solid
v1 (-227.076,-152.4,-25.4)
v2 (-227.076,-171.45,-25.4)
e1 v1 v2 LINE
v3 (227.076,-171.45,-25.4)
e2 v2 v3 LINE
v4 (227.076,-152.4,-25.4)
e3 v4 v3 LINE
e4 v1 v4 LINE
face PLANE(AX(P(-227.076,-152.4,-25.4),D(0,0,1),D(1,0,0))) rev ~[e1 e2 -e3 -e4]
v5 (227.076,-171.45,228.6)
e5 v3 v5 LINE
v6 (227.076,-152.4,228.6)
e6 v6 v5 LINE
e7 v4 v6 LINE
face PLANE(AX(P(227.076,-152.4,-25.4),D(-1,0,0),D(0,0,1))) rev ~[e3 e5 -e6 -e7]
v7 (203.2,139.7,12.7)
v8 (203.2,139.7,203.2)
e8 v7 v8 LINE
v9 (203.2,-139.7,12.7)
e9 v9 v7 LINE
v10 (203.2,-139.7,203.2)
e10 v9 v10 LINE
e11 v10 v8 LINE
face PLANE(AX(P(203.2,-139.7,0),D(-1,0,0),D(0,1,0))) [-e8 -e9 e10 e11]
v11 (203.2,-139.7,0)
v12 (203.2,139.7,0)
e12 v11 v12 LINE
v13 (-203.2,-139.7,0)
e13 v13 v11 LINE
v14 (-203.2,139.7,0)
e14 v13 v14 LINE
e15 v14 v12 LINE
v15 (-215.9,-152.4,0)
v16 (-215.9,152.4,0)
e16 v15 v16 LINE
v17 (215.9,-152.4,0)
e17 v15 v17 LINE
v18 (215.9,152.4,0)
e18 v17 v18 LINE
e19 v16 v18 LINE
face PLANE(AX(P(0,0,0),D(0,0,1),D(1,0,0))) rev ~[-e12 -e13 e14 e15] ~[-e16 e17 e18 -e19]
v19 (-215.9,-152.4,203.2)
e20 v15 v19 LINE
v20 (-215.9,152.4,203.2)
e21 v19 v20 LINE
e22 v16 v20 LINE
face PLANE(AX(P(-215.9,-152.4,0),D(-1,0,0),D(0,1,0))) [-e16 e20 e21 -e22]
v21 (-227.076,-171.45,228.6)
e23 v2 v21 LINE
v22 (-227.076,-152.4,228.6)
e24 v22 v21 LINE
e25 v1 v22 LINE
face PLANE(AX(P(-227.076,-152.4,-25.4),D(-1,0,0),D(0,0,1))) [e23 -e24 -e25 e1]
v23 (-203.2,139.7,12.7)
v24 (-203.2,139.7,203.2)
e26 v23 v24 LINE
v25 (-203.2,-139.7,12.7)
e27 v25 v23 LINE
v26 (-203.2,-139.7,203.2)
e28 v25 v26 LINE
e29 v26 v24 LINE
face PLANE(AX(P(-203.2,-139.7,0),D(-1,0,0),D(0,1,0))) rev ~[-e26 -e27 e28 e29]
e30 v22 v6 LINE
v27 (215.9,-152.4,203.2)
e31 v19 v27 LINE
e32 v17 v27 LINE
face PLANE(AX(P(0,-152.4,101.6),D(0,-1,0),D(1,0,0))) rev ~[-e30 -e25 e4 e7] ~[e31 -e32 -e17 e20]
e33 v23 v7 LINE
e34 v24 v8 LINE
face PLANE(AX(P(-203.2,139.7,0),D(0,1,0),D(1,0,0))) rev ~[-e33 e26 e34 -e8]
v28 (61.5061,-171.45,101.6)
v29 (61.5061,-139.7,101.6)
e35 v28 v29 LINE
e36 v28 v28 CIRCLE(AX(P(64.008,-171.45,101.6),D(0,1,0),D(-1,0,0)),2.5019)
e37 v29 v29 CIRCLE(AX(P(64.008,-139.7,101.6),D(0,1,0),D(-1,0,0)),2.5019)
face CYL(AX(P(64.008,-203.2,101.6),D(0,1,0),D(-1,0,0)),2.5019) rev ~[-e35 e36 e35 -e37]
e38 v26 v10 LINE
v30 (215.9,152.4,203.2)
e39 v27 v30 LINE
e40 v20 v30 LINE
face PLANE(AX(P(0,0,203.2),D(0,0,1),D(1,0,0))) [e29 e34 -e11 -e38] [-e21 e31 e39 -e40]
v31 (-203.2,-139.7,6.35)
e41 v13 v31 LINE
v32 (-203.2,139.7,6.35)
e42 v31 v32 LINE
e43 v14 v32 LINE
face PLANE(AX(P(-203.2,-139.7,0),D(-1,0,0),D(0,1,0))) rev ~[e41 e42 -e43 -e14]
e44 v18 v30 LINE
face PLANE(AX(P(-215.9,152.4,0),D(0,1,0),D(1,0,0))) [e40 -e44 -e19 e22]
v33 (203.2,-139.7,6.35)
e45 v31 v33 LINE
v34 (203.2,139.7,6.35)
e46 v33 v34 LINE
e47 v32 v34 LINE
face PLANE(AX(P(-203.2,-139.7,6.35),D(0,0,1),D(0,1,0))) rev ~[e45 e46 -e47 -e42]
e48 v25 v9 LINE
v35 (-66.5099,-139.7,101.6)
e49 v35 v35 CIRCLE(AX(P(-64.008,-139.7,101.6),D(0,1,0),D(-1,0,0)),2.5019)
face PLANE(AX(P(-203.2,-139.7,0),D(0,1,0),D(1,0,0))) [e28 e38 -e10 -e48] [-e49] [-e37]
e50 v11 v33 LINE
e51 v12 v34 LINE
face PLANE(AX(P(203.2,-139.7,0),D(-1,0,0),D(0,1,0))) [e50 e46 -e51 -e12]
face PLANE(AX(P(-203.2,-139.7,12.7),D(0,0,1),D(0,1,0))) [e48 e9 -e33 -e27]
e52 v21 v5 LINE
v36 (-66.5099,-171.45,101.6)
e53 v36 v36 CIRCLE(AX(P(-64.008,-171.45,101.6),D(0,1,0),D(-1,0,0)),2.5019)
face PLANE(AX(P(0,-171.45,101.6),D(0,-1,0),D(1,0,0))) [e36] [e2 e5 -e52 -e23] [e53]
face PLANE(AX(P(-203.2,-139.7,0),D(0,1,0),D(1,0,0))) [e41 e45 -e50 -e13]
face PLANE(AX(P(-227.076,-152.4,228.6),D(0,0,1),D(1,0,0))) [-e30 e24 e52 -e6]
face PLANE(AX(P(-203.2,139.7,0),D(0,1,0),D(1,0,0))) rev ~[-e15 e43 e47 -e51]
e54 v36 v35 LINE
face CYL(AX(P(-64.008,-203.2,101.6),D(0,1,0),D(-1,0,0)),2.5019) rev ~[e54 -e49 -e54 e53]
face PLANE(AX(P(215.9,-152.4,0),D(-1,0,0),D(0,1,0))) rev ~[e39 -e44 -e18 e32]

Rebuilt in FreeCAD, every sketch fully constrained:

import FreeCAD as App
import Part
import Sketcher
Q = App.Units.Quantity

doc = App.newDocument("Part")
body = doc.addObject("PartDesign::Body", "Body")

sketch1 = body.newObject("Sketcher::SketchObject", "Sketch")
sketch1.AttachmentSupport = (doc.getObject("XY_Plane"), [""])
sketch1.MapMode = "FlatFace"
sketch1.addGeometry(Part.LineSegment(App.Vector(-216, 152, 0), App.Vector(-216, -152, 0)), False)
sketch1.addGeometry(Part.LineSegment(App.Vector(-216, -152, 0), App.Vector(216, -152, 0)), False)
sketch1.addGeometry(Part.LineSegment(App.Vector(216, -152, 0), App.Vector(216, 152, 0)), False)
sketch1.addGeometry(Part.LineSegment(App.Vector(216, 152, 0), App.Vector(-216, 152, 0)), False)
sketch1.addGeometry(Part.LineSegment(App.Vector(203, -140, 0), App.Vector(-203, -140, 0)), False)
sketch1.addGeometry(Part.LineSegment(App.Vector(-203, -140, 0), App.Vector(-203, 140, 0)), False)
sketch1.addGeometry(Part.LineSegment(App.Vector(-203, 140, 0), App.Vector(203, 140, 0)), False)
sketch1.addGeometry(Part.LineSegment(App.Vector(203, 140, 0), App.Vector(203, -140, 0)), False)
sketch1.addConstraint(Sketcher.Constraint("Coincident", 0, 2, 1, 1))
sketch1.addConstraint(Sketcher.Constraint("Coincident", 1, 2, 2, 1))
sketch1.addConstraint(Sketcher.Constraint("Coincident", 2, 2, 3, 1))
sketch1.addConstraint(Sketcher.Constraint("Coincident", 3, 2, 0, 1))
sketch1.addConstraint(Sketcher.Constraint("Coincident", 4, 2, 5, 1))
sketch1.addConstraint(Sketcher.Constraint("Coincident", 5, 2, 6, 1))
sketch1.addConstraint(Sketcher.Constraint("Coincident", 6, 2, 7, 1))
sketch1.addConstraint(Sketcher.Constraint("Coincident", 7, 2, 4, 1))
sketch1.addConstraint(Sketcher.Constraint("Vertical", 0))
sketch1.addConstraint(Sketcher.Constraint("Horizontal", 1))
sketch1.addConstraint(Sketcher.Constraint("Vertical", 2))
sketch1.addConstraint(Sketcher.Constraint("Horizontal", 3))
sketch1.addConstraint(Sketcher.Constraint("Horizontal", 4))
sketch1.addConstraint(Sketcher.Constraint("Vertical", 5))
sketch1.addConstraint(Sketcher.Constraint("Horizontal", 6))
sketch1.addConstraint(Sketcher.Constraint("Vertical", 7))
sketch1.addConstraint(Sketcher.Constraint("Symmetric", 0, 2, 2, 2, -1, 1))
sketch1.addConstraint(Sketcher.Constraint("Symmetric", 4, 2, 6, 2, -1, 1))
sketch1.addConstraint(Sketcher.Constraint("DistanceX", 1, 1, 1, 2, Q("17 in")))
sketch1.addConstraint(Sketcher.Constraint("DistanceX", 4, 2, 4, 1, Q("16 in")))
sketch1.addConstraint(Sketcher.Constraint("DistanceY", 0, 2, 0, 1, Q("12 in")))
sketch1.addConstraint(Sketcher.Constraint("DistanceY", 5, 1, 5, 2, Q("11 in")))
pad1 = body.newObject("PartDesign::Pad", "Pad")
pad1.Profile = sketch1
pad1.Length = Q("8 in")

sketch2 = body.newObject("Sketcher::SketchObject", "Sketch001")
sketch2.AttachmentSupport = (doc.getObject("YZ_Plane"), [""])
sketch2.MapMode = "FlatFace"
sketch2.AttachmentOffset = App.Placement(App.Vector(0, 0, -8 * 25.4), App.Rotation())
sketch2.addGeometry(Part.LineSegment(App.Vector(-140, 13, 0), App.Vector(-140, 6, 0)), False)
sketch2.addGeometry(Part.LineSegment(App.Vector(-140, 6, 0), App.Vector(140, 6, 0)), False)
sketch2.addGeometry(Part.LineSegment(App.Vector(140, 6, 0), App.Vector(140, 13, 0)), False)
sketch2.addGeometry(Part.LineSegment(App.Vector(140, 13, 0), App.Vector(-140, 13, 0)), False)
sketch2.addConstraint(Sketcher.Constraint("Coincident", 0, 2, 1, 1))
sketch2.addConstraint(Sketcher.Constraint("Coincident", 1, 2, 2, 1))
sketch2.addConstraint(Sketcher.Constraint("Coincident", 2, 2, 3, 1))
sketch2.addConstraint(Sketcher.Constraint("Coincident", 3, 2, 0, 1))
sketch2.addConstraint(Sketcher.Constraint("Vertical", 0))
sketch2.addConstraint(Sketcher.Constraint("Horizontal", 1))
sketch2.addConstraint(Sketcher.Constraint("Vertical", 2))
sketch2.addConstraint(Sketcher.Constraint("Horizontal", 3))
sketch2.addConstraint(Sketcher.Constraint("DistanceX", 1, 1, 1, 2, Q("11 in")))
sketch2.addConstraint(Sketcher.Constraint("DistanceY", 0, 2, 0, 1, Q("0.25 in")))
sketch2.addConstraint(Sketcher.Constraint("DistanceX", 0, 2, -1, 1, Q("5.5 in")))
sketch2.addConstraint(Sketcher.Constraint("DistanceY", -1, 1, 2, 2, Q("0.5 in")))
pad2 = body.newObject("PartDesign::Pad", "Pad001")
pad2.Profile = sketch2
pad2.Type = "UpToLast"

sketch3 = body.newObject("Sketcher::SketchObject", "Sketch002")
sketch3.AttachmentSupport = (doc.getObject("XZ_Plane"), [""])
sketch3.MapMode = "FlatFace"
sketch3.AttachmentOffset = App.Placement(App.Vector(0, 0, 6 * 25.4), App.Rotation())
sketch3.addGeometry(Part.LineSegment(App.Vector(-227, 229, 0), App.Vector(-227, -25, 0)), False)
sketch3.addGeometry(Part.LineSegment(App.Vector(-227, -25, 0), App.Vector(227, -25, 0)), False)
sketch3.addGeometry(Part.LineSegment(App.Vector(227, -25, 0), App.Vector(227, 229, 0)), False)
sketch3.addGeometry(Part.LineSegment(App.Vector(227, 229, 0), App.Vector(-227, 229, 0)), False)
sketch3.addConstraint(Sketcher.Constraint("Coincident", 0, 2, 1, 1))
sketch3.addConstraint(Sketcher.Constraint("Coincident", 1, 2, 2, 1))
sketch3.addConstraint(Sketcher.Constraint("Coincident", 2, 2, 3, 1))
sketch3.addConstraint(Sketcher.Constraint("Coincident", 3, 2, 0, 1))
sketch3.addConstraint(Sketcher.Constraint("Vertical", 0))
sketch3.addConstraint(Sketcher.Constraint("Horizontal", 1))
sketch3.addConstraint(Sketcher.Constraint("Vertical", 2))
sketch3.addConstraint(Sketcher.Constraint("Horizontal", 3))
sketch3.addConstraint(Sketcher.Constraint("DistanceY", 0, 2, 0, 1, Q("10 in")))
sketch3.addConstraint(Sketcher.Constraint("DistanceY", 0, 2, -1, 1, Q("1 in")))
sketch3.addConstraint(Sketcher.Constraint("DistanceX", 1, 1, 1, 2, Q("17.88 in")))
sketch3.addConstraint(Sketcher.Constraint("DistanceX", 0, 2, -1, 1, Q("8.94 in")))
pad3 = body.newObject("PartDesign::Pad", "Pad002")
pad3.Profile = sketch3
pad3.Length = Q("0.75 in")

sketch4 = body.newObject("Sketcher::SketchObject", "Sketch003")
sketch4.AttachmentSupport = (doc.getObject("XZ_Plane"), [""])
sketch4.MapMode = "FlatFace"
sketch4.AttachmentOffset = App.Placement(App.Vector(0, 0, 6.75 * 25.4), App.Rotation())
sketch4.addGeometry(Part.Circle(App.Vector(-64, 101.6, 0), App.Vector(0, 0, 1), 2.5), False)
sketch4.addGeometry(Part.Circle(App.Vector(64, 101.6, 0), App.Vector(0, 0, 1), 2.5), False)
sketch4.addConstraint(Sketcher.Constraint("Equal", 0, 1))
sketch4.addConstraint(Sketcher.Constraint("Symmetric", 0, 3, 1, 3, -2))
sketch4.addConstraint(Sketcher.Constraint("Diameter", 0, Q("0.197 in")))
sketch4.addConstraint(Sketcher.Constraint("DistanceY", -1, 1, 0, 3, Q("4 in")))
sketch4.addConstraint(Sketcher.Constraint("DistanceX", 0, 3, -1, 1, Q("2.52 in")))
doc.recompute()
hole = body.newObject("PartDesign::Hole", "Hole")
hole.Profile = sketch4
hole.ThreadType = "None"
hole.Diameter = Q("0.197 in")
hole.DepthType = "Dimension"
hole.Depth = Q("1.25 in")
hole.DrillPoint = "Flat"

doc.recompute()
